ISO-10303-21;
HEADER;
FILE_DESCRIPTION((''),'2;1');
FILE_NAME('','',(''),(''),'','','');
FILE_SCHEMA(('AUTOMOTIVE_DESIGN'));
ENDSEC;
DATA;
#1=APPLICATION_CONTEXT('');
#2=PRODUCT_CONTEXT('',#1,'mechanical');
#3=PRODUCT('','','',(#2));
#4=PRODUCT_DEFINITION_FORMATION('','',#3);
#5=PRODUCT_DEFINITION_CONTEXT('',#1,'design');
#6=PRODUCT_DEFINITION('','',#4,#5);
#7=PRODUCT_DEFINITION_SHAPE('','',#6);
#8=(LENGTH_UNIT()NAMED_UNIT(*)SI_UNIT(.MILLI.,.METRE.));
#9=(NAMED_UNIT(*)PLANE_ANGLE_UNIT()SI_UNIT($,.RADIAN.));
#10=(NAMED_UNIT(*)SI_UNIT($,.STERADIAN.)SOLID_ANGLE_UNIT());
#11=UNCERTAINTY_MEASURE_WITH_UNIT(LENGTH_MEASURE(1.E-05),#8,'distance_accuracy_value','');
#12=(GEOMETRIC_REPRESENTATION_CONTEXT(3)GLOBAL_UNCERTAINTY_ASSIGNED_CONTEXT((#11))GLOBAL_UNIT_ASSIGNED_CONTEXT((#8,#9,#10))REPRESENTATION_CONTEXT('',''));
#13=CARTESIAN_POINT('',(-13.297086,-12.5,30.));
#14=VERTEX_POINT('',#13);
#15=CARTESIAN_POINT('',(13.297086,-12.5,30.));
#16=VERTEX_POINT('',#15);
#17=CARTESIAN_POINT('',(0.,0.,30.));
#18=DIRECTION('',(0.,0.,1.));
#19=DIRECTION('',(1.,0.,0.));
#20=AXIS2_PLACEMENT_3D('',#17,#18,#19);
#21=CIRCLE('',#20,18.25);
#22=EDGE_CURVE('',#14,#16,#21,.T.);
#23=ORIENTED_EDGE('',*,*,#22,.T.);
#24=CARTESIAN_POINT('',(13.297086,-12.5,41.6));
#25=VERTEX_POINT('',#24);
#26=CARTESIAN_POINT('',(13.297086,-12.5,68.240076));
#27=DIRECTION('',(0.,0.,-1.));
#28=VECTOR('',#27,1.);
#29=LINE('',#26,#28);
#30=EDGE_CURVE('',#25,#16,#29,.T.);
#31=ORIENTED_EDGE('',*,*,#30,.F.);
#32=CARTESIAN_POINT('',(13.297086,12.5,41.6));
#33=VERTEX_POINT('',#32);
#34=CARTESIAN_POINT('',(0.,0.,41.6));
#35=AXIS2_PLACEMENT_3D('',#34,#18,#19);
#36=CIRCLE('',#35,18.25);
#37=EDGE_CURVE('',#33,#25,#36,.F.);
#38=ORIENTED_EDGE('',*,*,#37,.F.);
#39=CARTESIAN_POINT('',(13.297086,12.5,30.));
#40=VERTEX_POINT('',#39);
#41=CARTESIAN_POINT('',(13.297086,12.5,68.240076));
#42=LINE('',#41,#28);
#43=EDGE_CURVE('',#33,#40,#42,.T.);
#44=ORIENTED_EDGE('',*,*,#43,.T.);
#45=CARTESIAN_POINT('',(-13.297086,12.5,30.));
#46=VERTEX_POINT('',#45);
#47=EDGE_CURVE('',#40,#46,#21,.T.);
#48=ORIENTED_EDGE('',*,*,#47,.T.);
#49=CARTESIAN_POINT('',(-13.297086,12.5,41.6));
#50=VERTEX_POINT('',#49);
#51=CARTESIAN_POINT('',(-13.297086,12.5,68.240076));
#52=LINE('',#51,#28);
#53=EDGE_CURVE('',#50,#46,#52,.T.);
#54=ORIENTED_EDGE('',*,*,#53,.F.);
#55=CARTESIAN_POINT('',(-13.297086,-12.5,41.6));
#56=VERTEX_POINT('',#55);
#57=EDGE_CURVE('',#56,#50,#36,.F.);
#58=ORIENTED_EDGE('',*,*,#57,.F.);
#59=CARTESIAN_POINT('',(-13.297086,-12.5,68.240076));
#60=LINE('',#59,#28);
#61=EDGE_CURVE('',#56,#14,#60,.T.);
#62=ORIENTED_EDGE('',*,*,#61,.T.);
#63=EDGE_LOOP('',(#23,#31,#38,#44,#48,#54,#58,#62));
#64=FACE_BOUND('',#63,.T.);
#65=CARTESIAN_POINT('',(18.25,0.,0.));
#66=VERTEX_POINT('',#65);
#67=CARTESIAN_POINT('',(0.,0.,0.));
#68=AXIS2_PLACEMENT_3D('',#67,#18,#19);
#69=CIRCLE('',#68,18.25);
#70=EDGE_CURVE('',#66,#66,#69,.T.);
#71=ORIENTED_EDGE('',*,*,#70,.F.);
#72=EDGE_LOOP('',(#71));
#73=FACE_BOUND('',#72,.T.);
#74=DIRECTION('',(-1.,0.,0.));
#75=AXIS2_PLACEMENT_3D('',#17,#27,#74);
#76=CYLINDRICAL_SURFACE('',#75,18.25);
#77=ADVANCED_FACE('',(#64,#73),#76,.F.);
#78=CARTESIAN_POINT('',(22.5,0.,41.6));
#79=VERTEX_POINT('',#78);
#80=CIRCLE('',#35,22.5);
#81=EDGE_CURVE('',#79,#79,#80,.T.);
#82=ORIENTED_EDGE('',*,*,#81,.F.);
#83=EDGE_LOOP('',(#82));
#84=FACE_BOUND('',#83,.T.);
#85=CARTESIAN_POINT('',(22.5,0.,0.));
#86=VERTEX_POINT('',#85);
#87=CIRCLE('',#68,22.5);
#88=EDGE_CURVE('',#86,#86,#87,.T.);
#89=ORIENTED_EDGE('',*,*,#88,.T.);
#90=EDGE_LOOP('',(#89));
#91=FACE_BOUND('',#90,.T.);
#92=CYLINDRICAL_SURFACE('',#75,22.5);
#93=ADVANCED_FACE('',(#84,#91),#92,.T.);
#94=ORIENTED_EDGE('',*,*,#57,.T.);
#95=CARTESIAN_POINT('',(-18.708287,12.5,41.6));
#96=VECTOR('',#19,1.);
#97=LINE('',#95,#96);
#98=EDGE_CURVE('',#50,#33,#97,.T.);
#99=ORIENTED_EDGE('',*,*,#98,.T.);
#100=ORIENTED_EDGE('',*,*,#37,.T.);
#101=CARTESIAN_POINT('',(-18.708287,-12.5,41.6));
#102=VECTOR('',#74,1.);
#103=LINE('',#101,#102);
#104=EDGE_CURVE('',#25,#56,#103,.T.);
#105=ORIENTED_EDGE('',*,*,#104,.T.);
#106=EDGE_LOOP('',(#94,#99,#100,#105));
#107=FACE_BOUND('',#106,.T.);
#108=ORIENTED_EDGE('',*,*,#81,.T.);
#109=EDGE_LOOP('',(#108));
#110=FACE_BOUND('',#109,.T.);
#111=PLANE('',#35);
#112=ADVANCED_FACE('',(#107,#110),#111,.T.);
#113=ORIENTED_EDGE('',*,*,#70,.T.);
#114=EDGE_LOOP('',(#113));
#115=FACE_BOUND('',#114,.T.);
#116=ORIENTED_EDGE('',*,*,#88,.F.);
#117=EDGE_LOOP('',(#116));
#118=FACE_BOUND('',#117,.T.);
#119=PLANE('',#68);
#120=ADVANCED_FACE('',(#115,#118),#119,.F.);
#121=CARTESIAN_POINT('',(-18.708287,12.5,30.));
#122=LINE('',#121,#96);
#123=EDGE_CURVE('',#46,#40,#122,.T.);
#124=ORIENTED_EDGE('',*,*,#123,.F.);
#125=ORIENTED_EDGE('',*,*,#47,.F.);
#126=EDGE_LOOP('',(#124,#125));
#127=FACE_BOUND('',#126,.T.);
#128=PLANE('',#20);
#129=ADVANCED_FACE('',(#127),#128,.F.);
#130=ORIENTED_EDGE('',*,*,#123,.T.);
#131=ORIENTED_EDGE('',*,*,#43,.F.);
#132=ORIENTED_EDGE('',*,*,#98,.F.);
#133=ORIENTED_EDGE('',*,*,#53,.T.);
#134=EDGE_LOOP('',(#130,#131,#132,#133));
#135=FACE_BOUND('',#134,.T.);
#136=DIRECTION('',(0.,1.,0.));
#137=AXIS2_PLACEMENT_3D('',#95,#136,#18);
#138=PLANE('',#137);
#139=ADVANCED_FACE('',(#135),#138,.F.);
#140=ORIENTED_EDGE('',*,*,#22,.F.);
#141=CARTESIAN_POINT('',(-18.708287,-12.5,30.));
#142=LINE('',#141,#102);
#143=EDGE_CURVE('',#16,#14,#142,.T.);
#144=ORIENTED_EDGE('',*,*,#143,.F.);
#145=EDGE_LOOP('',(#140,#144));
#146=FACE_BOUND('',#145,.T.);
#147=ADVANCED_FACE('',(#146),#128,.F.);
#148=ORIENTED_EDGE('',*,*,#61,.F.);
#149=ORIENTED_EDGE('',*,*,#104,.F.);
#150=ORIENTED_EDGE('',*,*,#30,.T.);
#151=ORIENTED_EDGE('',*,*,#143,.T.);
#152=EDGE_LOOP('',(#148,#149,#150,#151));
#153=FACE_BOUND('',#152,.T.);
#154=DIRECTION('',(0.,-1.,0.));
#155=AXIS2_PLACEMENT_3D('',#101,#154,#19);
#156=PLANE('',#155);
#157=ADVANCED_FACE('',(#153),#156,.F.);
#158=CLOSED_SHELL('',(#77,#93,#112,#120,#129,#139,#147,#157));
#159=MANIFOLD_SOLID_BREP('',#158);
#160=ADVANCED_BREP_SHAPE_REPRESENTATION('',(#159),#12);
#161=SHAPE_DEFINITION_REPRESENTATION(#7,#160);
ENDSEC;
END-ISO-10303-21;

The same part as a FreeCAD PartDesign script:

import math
import FreeCAD as App
import Part
import Sketcher
Q = App.Units.Quantity

doc = App.newDocument("Part")
body = doc.addObject("PartDesign::Body", "Body")

# Sketch on XY plane
sketch1 = doc.addObject("Sketcher::SketchObject", "Sketch")
body.addObject(sketch1)
sketch1.AttachmentSupport = (doc.XY_Plane, [""])
sketch1.MapMode = "FlatFace"
sketch1.addGeometry([
    Part.Circle(App.Vector(0, 0, 0), App.Vector(0, 0, 1), 22),
    Part.Circle(App.Vector(0, 0, 0), App.Vector(0, 0, 1), 18),
], False)
sketch1.addConstraint([
    Sketcher.Constraint("Coincident", 0, 3, -1, 1),
    Sketcher.Constraint("Coincident", 1, 3, -1, 1),
    Sketcher.Constraint("Diameter", 0, Q("45 mm")),
    Sketcher.Constraint("Diameter", 1, Q("36.5 mm")),
])
pad1 = doc.addObject("PartDesign::Pad", "Pad")
body.addObject(pad1)
pad1.Profile = sketch1
pad1.Length = 30

# Sketch on XY plane
sketch2 = doc.addObject("Sketcher::SketchObject", "Sketch001")
body.addObject(sketch2)
sketch2.AttachmentSupport = (doc.XY_Plane, [""])
sketch2.MapMode = "FlatFace"
sketch2.AttachmentOffset = App.Placement(App.Vector(0, 0, 30), App.Rotation())
sketch2.addGeometry([
    Part.LineSegment(App.Vector(-19, 12, 0), App.Vector(19, 12, 0)),
    Part.ArcOfCircle(Part.Circle(App.Vector(0, 0, 0), App.Vector(0, 0, 1), 22), math.radians(34), math.radians(146)),
    Part.LineSegment(App.Vector(19, -12, 0), App.Vector(-19, -12, 0)),
    Part.ArcOfCircle(Part.Circle(App.Vector(0, 0, 0), App.Vector(0, 0, 1), 22), math.radians(-146), math.radians(-34)),
], False)
sketch2.addConstraint([
    Sketcher.Constraint("Coincident", 0, 1, 1, 2),
    Sketcher.Constraint("Coincident", 1, 1, 0, 2),
    Sketcher.Constraint("Coincident", 2, 1, 3, 2),
    Sketcher.Constraint("Coincident", 3, 1, 2, 2),
    Sketcher.Constraint("Horizontal", 0),
    Sketcher.Constraint("Horizontal", 2),
    Sketcher.Constraint("Coincident", 1, 3, -1, 1),
    Sketcher.Constraint("Coincident", 3, 3, -1, 1),
    Sketcher.Constraint("Equal", 1, 3),
    Sketcher.Constraint("Vertical", 1, 1, 2, 1),
    Sketcher.Constraint("Radius", 1, Q("22.5 mm")),
    Sketcher.Constraint("DistanceY", 2, 1, 1, 1, Q("25 mm")),
])
pad2 = doc.addObject("PartDesign::Pad", "Pad001")
body.addObject(pad2)
pad2.Profile = sketch2
pad2.Length = 11.6

# Sketch on XY plane
sketch3 = doc.addObject("Sketcher::SketchObject", "Sketch002")
body.addObject(sketch3)
sketch3.AttachmentSupport = (doc.XY_Plane, [""])
sketch3.MapMode = "FlatFace"
sketch3.AttachmentOffset = App.Placement(App.Vector(0, 0, 30), App.Rotation())
sketch3.addGeometry([
    Part.LineSegment(App.Vector(19, 12, 0), App.Vector(13, 12, 0)),  # 0
    Part.ArcOfCircle(Part.Circle(App.Vector(0, 0, 0), App.Vector(0, 0, 1), 18), math.radians(-43), math.radians(43)),  # 1
    Part.LineSegment(App.Vector(13, -12, 0), App.Vector(19, -12, 0)),  # 2
    Part.ArcOfCircle(Part.Circle(App.Vector(0, 0, 0), App.Vector(0, 0, 1), 23), math.radians(-34), math.radians(34)),  # 3
    Part.LineSegment(App.Vector(-13, 12, 0), App.Vector(-19, 12, 0)),  # 4
    Part.ArcOfCircle(Part.Circle(App.Vector(0, 0, 0), App.Vector(0, 0, 1), 23), math.radians(146), math.radians(214)),  # 5
    Part.LineSegment(App.Vector(-19, -12, 0), App.Vector(-13, -12, 0)),  # 6
    Part.ArcOfCircle(Part.Circle(App.Vector(0, 0, 0), App.Vector(0, 0, 1), 18), math.radians(137), math.radians(223)),  # 7
], False)
sketch3.addConstraint([
    Sketcher.Constraint("Coincident", 0, 2, 1, 2),
    Sketcher.Constraint("Coincident", 1, 1, 2, 1),
    Sketcher.Constraint("Coincident", 2, 2, 3, 1),
    Sketcher.Constraint("Coincident", 3, 2, 0, 1),
    Sketcher.Constraint("Coincident", 4, 2, 5, 1),
    Sketcher.Constraint("Coincident", 5, 2, 6, 1),
    Sketcher.Constraint("Coincident", 6, 2, 7, 2),
    Sketcher.Constraint("Coincident", 7, 1, 4, 1),
    Sketcher.Constraint("Horizontal", 0),
    Sketcher.Constraint("Horizontal", 2),
    Sketcher.Constraint("Horizontal", 4),
    Sketcher.Constraint("Horizontal", 6),
    Sketcher.Constraint("Coincident", 1, 3, -1, 1),
    Sketcher.Constraint("Coincident", 3, 3, -1, 1),
    Sketcher.Constraint("Coincident", 5, 3, -1, 1),
    Sketcher.Constraint("Coincident", 7, 3, -1, 1),
    Sketcher.Constraint("Equal", 3, 5),
    Sketcher.Constraint("Equal", 1, 7),
    Sketcher.Constraint("Horizontal", 3, 2, 4, 2),
    Sketcher.Constraint("Horizontal", 2, 2, 5, 2),
    Sketcher.Constraint("Vertical", 0, 2, 1, 1),
    Sketcher.Constraint("Radius", 3, Q("22.5 mm")),
    Sketcher.Constraint("Radius", 1, Q("18.25 mm")),
    Sketcher.Constraint("DistanceY", 1, 1, 0, 2, Q("25 mm")),
])
pad3 = doc.addObject("PartDesign::Pad", "Pad002")
body.addObject(pad3)
pad3.Profile = sketch3
pad3.Length = 11.6

doc.recompute()
